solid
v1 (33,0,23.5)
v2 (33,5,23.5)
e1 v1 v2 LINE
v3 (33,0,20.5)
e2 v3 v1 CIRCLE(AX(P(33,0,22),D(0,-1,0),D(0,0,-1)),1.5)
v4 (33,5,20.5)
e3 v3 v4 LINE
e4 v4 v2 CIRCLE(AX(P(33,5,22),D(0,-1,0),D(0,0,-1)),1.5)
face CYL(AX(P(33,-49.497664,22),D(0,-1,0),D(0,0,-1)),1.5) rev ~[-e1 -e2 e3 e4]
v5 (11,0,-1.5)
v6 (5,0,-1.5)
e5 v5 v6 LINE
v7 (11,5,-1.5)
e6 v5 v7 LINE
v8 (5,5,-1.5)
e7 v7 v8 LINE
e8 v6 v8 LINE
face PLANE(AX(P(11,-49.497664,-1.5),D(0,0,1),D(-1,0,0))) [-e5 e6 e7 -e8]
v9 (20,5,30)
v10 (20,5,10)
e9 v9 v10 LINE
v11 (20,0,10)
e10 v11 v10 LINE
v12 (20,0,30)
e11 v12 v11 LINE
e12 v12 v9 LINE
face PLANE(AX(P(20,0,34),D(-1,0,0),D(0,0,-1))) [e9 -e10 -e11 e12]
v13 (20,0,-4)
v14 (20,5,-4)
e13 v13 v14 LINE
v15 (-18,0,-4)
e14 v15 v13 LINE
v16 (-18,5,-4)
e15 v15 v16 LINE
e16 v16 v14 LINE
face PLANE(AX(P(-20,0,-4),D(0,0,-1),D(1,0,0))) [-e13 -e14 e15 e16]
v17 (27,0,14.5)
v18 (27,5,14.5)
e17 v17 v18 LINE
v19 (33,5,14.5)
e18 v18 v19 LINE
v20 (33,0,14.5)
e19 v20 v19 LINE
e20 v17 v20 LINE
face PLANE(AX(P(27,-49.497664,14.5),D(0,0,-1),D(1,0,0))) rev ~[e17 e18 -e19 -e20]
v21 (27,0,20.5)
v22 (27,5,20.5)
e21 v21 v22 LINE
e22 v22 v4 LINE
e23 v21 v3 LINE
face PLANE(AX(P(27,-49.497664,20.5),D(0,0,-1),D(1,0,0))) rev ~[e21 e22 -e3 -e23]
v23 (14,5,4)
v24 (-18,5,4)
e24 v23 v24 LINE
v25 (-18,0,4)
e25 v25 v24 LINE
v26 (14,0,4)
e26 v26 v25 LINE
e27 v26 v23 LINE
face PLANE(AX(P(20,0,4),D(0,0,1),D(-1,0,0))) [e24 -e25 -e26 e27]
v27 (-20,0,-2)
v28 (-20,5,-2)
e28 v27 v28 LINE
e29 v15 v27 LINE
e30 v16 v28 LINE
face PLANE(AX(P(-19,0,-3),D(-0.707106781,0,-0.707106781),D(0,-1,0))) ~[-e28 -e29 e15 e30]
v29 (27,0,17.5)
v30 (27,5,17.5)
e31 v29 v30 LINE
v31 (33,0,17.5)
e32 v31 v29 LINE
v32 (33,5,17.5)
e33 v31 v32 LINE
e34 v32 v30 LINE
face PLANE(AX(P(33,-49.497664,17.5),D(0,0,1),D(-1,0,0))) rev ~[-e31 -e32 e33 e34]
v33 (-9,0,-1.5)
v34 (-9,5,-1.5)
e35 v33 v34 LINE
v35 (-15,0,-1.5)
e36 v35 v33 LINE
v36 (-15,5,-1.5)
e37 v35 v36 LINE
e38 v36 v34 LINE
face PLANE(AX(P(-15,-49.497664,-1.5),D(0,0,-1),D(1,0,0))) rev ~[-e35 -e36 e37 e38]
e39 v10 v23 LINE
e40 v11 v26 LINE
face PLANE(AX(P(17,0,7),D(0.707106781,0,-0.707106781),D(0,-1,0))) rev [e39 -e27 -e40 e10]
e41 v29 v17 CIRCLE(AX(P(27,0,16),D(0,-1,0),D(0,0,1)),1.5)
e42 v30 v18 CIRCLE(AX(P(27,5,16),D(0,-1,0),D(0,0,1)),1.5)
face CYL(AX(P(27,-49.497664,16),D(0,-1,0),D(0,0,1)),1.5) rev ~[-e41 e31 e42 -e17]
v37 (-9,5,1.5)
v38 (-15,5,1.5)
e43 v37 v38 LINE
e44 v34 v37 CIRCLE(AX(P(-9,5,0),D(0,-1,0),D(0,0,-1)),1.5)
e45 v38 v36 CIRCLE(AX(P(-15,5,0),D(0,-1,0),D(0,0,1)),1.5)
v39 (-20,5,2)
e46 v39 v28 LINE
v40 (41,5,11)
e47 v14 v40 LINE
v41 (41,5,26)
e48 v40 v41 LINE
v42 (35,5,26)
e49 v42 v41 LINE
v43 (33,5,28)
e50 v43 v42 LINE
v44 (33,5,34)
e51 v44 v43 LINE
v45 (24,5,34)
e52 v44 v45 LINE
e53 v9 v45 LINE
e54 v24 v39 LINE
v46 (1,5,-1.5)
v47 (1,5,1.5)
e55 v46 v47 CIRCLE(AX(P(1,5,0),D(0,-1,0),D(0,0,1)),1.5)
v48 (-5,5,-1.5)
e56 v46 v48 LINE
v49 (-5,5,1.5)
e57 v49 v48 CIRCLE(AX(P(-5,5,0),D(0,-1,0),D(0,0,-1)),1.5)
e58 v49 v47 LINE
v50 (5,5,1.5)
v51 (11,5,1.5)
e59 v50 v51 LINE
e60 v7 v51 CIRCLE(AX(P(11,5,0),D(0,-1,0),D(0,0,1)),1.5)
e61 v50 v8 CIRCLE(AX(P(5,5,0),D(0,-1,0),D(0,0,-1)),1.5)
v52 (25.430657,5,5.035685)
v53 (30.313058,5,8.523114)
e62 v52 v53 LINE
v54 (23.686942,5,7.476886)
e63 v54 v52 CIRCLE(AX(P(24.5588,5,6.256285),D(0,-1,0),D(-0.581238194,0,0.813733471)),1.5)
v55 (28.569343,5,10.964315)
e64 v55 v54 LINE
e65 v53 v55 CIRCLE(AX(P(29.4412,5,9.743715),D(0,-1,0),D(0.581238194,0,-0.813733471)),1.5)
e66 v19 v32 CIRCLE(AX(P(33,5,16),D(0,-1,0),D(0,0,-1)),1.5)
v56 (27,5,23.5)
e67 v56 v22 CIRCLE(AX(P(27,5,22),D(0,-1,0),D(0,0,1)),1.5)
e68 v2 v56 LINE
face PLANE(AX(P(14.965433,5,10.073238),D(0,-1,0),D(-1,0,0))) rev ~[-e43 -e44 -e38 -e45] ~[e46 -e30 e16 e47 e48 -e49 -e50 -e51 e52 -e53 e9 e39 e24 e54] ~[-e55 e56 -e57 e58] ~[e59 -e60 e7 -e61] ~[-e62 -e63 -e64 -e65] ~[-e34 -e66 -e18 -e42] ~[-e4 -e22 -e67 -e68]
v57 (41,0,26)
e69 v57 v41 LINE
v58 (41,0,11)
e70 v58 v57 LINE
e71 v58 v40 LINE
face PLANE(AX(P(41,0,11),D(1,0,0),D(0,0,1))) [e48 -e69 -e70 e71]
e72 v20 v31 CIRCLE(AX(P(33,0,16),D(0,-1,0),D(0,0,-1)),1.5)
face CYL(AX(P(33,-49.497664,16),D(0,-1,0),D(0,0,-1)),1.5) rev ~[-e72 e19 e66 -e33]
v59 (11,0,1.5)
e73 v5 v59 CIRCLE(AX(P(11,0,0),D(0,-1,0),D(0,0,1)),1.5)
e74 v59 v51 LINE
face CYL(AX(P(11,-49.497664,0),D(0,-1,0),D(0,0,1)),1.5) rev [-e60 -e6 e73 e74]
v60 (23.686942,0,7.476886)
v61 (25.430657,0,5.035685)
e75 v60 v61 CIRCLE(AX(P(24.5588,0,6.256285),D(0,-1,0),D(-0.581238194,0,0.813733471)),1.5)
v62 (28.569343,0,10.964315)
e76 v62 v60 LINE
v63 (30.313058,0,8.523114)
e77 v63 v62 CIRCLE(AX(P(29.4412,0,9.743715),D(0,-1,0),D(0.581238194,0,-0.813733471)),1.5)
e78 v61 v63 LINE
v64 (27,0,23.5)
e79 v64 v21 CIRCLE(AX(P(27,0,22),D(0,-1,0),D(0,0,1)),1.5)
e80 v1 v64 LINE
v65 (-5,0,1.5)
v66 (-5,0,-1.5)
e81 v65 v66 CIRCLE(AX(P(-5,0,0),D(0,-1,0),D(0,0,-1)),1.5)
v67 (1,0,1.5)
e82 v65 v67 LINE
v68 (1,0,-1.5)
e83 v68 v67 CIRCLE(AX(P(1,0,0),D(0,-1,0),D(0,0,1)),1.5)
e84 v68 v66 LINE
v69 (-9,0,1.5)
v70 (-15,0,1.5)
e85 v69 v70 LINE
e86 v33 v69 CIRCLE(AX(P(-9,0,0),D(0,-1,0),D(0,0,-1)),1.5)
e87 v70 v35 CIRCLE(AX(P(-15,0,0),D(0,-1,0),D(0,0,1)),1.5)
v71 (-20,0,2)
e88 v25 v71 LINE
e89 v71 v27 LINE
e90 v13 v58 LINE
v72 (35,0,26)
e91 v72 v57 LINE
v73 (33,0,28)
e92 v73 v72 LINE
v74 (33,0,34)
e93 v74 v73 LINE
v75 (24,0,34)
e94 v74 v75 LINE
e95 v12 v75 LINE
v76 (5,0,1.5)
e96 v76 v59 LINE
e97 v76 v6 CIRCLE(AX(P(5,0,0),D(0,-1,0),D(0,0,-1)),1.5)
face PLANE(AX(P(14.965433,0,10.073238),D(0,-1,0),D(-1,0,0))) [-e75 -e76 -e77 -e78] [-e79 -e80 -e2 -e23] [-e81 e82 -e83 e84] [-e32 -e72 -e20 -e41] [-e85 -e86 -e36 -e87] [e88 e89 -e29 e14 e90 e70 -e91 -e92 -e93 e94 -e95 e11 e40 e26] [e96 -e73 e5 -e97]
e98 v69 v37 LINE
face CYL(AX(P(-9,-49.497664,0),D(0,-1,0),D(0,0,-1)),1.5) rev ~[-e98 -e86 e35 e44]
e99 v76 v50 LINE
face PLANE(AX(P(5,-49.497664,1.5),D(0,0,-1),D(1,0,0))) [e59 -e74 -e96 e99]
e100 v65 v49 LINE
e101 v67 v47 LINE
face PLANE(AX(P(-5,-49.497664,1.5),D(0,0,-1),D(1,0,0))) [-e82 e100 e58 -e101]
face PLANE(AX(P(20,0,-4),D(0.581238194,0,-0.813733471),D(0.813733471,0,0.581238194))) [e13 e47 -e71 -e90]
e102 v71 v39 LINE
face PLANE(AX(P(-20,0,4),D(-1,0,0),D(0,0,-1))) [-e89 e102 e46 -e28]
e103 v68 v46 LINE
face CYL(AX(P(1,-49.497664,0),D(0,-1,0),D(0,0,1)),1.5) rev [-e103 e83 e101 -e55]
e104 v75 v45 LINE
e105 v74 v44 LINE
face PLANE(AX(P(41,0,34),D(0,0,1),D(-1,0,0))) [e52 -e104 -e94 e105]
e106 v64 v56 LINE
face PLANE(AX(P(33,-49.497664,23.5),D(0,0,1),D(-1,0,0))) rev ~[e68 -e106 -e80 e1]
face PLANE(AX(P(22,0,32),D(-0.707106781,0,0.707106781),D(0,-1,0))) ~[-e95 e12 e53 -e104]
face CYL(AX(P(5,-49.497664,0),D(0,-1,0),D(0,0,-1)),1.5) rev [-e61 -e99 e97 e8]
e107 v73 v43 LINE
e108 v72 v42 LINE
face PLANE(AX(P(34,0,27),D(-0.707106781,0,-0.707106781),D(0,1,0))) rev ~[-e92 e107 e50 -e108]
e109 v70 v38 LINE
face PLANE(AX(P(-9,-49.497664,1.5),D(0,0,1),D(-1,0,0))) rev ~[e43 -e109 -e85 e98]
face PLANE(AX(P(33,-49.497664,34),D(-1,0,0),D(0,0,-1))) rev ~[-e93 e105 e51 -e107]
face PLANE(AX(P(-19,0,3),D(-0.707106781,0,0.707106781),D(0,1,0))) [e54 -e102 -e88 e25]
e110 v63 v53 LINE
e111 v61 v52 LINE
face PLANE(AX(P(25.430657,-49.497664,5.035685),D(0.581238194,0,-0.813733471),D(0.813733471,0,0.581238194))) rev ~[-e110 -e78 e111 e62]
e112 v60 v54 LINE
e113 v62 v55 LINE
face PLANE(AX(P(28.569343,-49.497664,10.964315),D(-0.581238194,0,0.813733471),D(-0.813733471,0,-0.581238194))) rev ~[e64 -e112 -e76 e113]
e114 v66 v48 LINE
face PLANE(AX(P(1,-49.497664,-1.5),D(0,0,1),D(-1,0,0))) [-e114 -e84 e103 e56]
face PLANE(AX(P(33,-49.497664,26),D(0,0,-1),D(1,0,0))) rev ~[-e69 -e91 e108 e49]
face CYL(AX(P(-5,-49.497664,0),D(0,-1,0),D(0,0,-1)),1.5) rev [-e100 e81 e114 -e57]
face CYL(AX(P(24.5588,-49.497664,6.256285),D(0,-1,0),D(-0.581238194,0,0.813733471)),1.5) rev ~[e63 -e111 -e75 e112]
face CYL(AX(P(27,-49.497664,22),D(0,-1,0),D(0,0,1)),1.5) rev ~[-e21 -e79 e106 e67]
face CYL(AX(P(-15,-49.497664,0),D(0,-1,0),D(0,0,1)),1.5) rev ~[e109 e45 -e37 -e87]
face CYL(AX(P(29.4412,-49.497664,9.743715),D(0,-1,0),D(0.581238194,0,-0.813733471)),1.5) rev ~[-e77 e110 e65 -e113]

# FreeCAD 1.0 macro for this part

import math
import FreeCAD as App
import Part
import Sketcher

V = App.Vector


def edges_at(feature, points):
    """Names of the edges that pass closest to the given points."""
    edges = feature.Shape.Edges
    near = lambda p: min(range(len(edges)), key=lambda i: edges[i].distToShape(Part.Vertex(*p))[0])
    return sorted({f"Edge{near(p) + 1}" for p in points})


def add_polygon(sketch, points):
    """Adds a closed chain of lines whose ends are joined by coincident constraints."""
    first, n = sketch.GeometryCount, len(points)
    for a, b in zip(points, points[1:] + points[:1]):
        sketch.addGeometry(Part.LineSegment(App.Vector(*a, 0), App.Vector(*b, 0)), False)
    for i in range(n):
        sketch.addConstraint(Sketcher.Constraint("Coincident", first + i, 2, first + (i + 1) % n, 1))

doc = App.newDocument("Part")
params = doc.addObject("Spreadsheet::Sheet", "Params")
for row, (alias, value) in enumerate([
    ("sketch1_width", "40 mm"),
    ("sketch1_width2", "21 mm"),
    ("sketch1_height", "8 mm"),
    ("sketch1_height2", "30 mm"),
    ("sketch1_height3", "23 mm"),
    ("pad1_length", "5 mm"),
    ("chamfer_size", "6 mm"),
    ("sketch2_radius", "1.5 mm"),
    ("sketch2_width", "6 mm"),
    ("sketch2_width2", "8 mm"),
    ("sketch2_length", "6 mm"),
    ("chamfer2_size", "2 mm"),
    ("chamfer3_size", "2 mm"),
    ("chamfer4_size", "4 mm"),
], start=1):
    params.set(f"A{row}", alias)
    params.set(f"B{row}", "=" + value)
    params.setAlias(f"B{row}", alias)

body = doc.addObject("PartDesign::Body", "Body")

sketch1 = doc.addObject("Sketcher::SketchObject", "Sketch")
body.addObject(sketch1)
sketch1.AttachmentSupport = (doc.XZ_Plane, [""])
sketch1.MapMode = "FlatFace"
add_polygon(sketch1, [(41, 11), (20, -4), (-20, -4), (-20, 4), (20, 4), (20, 34), (41, 34)])
sketch1.addConstraint(Sketcher.Constraint("Horizontal", 1))
sketch1.addConstraint(Sketcher.Constraint("Vertical", 2))
sketch1.addConstraint(Sketcher.Constraint("Horizontal", 3))
sketch1.addConstraint(Sketcher.Constraint("Vertical", 4))
sketch1.addConstraint(Sketcher.Constraint("Horizontal", 5))
sketch1.addConstraint(Sketcher.Constraint("Vertical", 6))
sketch1.addConstraint(Sketcher.Constraint("Symmetric", 0, 2, 2, 2, -1, 1))
sketch1.addConstraint(Sketcher.Constraint("Vertical", 0, 2, 3, 2))
sketch1.addConstraint(Sketcher.Constraint("DistanceX", 1, 2, 1, 1, 40.0))
sketch1.addConstraint(Sketcher.Constraint("DistanceX", 5, 1, 5, 2, 21.0))
sketch1.addConstraint(Sketcher.Constraint("DistanceY", 2, 1, 2, 2, 8.0))
sketch1.addConstraint(Sketcher.Constraint("DistanceY", 4, 1, 4, 2, 30.0))
sketch1.addConstraint(Sketcher.Constraint("DistanceY", 6, 2, 6, 1, 23.0))
sketch1.setExpression("Constraints[15]", "Params.sketch1_width")
sketch1.setExpression("Constraints[16]", "Params.sketch1_width2")
sketch1.setExpression("Constraints[17]", "Params.sketch1_height")
sketch1.setExpression("Constraints[18]", "Params.sketch1_height2")
sketch1.setExpression("Constraints[19]", "Params.sketch1_height3")
pad1 = doc.addObject("PartDesign::Pad", "Pad")
body.addObject(pad1)
pad1.Profile = sketch1
pad1.setExpression("Length", "Params.pad1_length")
pad1.Reversed = True
doc.recompute()

chamfer = doc.addObject("PartDesign::Chamfer", "Chamfer")
body.addObject(chamfer)
chamfer.Base = (pad1, edges_at(pad1, [(20, 2.5, 4)]))
chamfer.setExpression("Size", "Params.chamfer_size")

sketch2 = doc.addObject("Sketcher::SketchObject", "Sketch001")
body.addObject(sketch2)
sketch2.AttachmentSupport = (doc.XZ_Plane, [""])
sketch2.MapMode = "FlatFace"
sketch2.AttachmentOffset = App.Placement(V(0, 0, -5), App.Rotation())
sketch2.addGeometry(Part.LineSegment(V(-9, -1.5, 0), V(-15, -1.5, 0)), False)
sketch2.addGeometry(Part.ArcOfCircle(Part.Circle(V(-15, 0, 0), V(0, 0, 1), 1.5), math.radians(90), math.radians(270)), False)
sketch2.addGeometry(Part.LineSegment(V(-15, 1.5, 0), V(-9, 1.5, 0)), False)
sketch2.addGeometry(Part.ArcOfCircle(Part.Circle(V(-9, 0, 0), V(0, 0, 1), 1.5), math.radians(-90), math.radians(90)), False)
sketch2.addGeometry(Part.LineSegment(V(-5, 1.5, 0), V(1, 1.5, 0)), False)
sketch2.addGeometry(Part.ArcOfCircle(Part.Circle(V(1, 0, 0), V(0, 0, 1), 1.5), math.radians(-90), math.radians(90)), False)
sketch2.addGeometry(Part.LineSegment(V(1, -1.5, 0), V(-5, -1.5, 0)), False)
sketch2.addGeometry(Part.ArcOfCircle(Part.Circle(V(-5, 0, 0), V(0, 0, 1), 1.5), math.radians(90), math.radians(270)), False)
sketch2.addGeometry(Part.LineSegment(V(5, 1.5, 0), V(11, 1.5, 0)), False)
sketch2.addGeometry(Part.ArcOfCircle(Part.Circle(V(11, 0, 0), V(0, 0, 1), 1.5), math.radians(-90), math.radians(90)), False)
sketch2.addGeometry(Part.LineSegment(V(11, -1.5, 0), V(5, -1.5, 0)), False)
sketch2.addGeometry(Part.ArcOfCircle(Part.Circle(V(5, 0, 0), V(0, 0, 1), 1.5), math.radians(90), math.radians(270)), False)
sketch2.addGeometry(Part.LineSegment(V(23.686942, 7.476886, 0), V(28.569343, 10.964315, 0)), False)
sketch2.addGeometry(Part.ArcOfCircle(Part.Circle(V(29.4412, 9.743715, 0), V(0, 0, 1), 1.5), math.radians(-54.462322), math.radians(125.537678)), False)
sketch2.addGeometry(Part.LineSegment(V(30.313058, 8.523114, 0), V(25.430657, 5.035685, 0)), False)
sketch2.addGeometry(Part.ArcOfCircle(Part.Circle(V(24.5588, 6.256285, 0), V(0, 0, 1), 1.5), math.radians(125.537678), math.radians(305.537678)), False)
sketch2.addGeometry(Part.LineSegment(V(33, 14.5, 0), V(27, 14.5, 0)), False)
sketch2.addGeometry(Part.ArcOfCircle(Part.Circle(V(27, 16, 0), V(0, 0, 1), 1.5), math.radians(90), math.radians(270)), False)
sketch2.addGeometry(Part.LineSegment(V(27, 17.5, 0), V(33, 17.5, 0)), False)
sketch2.addGeometry(Part.ArcOfCircle(Part.Circle(V(33, 16, 0), V(0, 0, 1), 1.5), math.radians(-90), math.radians(90)), False)
add_polygon(sketch2, [(33, 26), (33, 34), (41, 34), (41, 26)])
sketch2.addGeometry(Part.LineSegment(V(33, 20.5, 0), V(27, 20.5, 0)), False)
sketch2.addGeometry(Part.ArcOfCircle(Part.Circle(V(27, 22, 0), V(0, 0, 1), 1.5), math.radians(90), math.radians(270)), False)
sketch2.addGeometry(Part.LineSegment(V(27, 23.5, 0), V(33, 23.5, 0)), False)
sketch2.addGeometry(Part.ArcOfCircle(Part.Circle(V(33, 22, 0), V(0, 0, 1), 1.5), math.radians(-90), math.radians(90)), False)
sketch2.addConstraint(Sketcher.Constraint("Tangent", 0, 2, 1, 2))
sketch2.addConstraint(Sketcher.Constraint("Tangent", 1, 1, 2, 1))
sketch2.addConstraint(Sketcher.Constraint("Tangent", 2, 2, 3, 2))
sketch2.addConstraint(Sketcher.Constraint("Tangent", 3, 1, 0, 1))
sketch2.addConstraint(Sketcher.Constraint("Tangent", 4, 2, 5, 2))
sketch2.addConstraint(Sketcher.Constraint("Tangent", 5, 1, 6, 1))
sketch2.addConstraint(Sketcher.Constraint("Tangent", 6, 2, 7, 2))
sketch2.addConstraint(Sketcher.Constraint("Tangent", 7, 1, 4, 1))
sketch2.addConstraint(Sketcher.Constraint("Tangent", 8, 2, 9, 2))
sketch2.addConstraint(Sketcher.Constraint("Tangent", 9, 1, 10, 1))
sketch2.addConstraint(Sketcher.Constraint("Tangent", 10, 2, 11, 2))
sketch2.addConstraint(Sketcher.Constraint("Tangent", 11, 1, 8, 1))
sketch2.addConstraint(Sketcher.Constraint("Tangent", 12, 2, 13, 2))
sketch2.addConstraint(Sketcher.Constraint("Tangent", 13, 1, 14, 1))
sketch2.addConstraint(Sketcher.Constraint("Tangent", 14, 2, 15, 2))
sketch2.addConstraint(Sketcher.Constraint("Tangent", 15, 1, 12, 1))
sketch2.addConstraint(Sketcher.Constraint("Tangent", 16, 2, 17, 2))
sketch2.addConstraint(Sketcher.Constraint("Tangent", 17, 1, 18, 1))
sketch2.addConstraint(Sketcher.Constraint("Tangent", 18, 2, 19, 2))
sketch2.addConstraint(Sketcher.Constraint("Tangent", 19, 1, 16, 1))
sketch2.addConstraint(Sketcher.Constraint("Tangent", 24, 2, 25, 2))
sketch2.addConstraint(Sketcher.Constraint("Tangent", 25, 1, 26, 1))
sketch2.addConstraint(Sketcher.Constraint("Tangent", 26, 2, 27, 2))
sketch2.addConstraint(Sketcher.Constraint("Tangent", 27, 1, 24, 1))
sketch2.addConstraint(Sketcher.Constraint("Horizontal", 0))
sketch2.addConstraint(Sketcher.Constraint("Horizontal", 2))
sketch2.addConstraint(Sketcher.Constraint("Horizontal", 4))
sketch2.addConstraint(Sketcher.Constraint("Horizontal", 6))
sketch2.addConstraint(Sketcher.Constraint("Horizontal", 8))
sketch2.addConstraint(Sketcher.Constraint("Horizontal", 10))
sketch2.addConstraint(Sketcher.Constraint("Horizontal", 16))
sketch2.addConstraint(Sketcher.Constraint("Horizontal", 18))
sketch2.addConstraint(Sketcher.Constraint("Vertical", 20))
sketch2.addConstraint(Sketcher.Constraint("Horizontal", 21))
sketch2.addConstraint(Sketcher.Constraint("Vertical", 22))
sketch2.addConstraint(Sketcher.Constraint("Horizontal", 23))
sketch2.addConstraint(Sketcher.Constraint("Horizontal", 24))
sketch2.addConstraint(Sketcher.Constraint("Horizontal", 26))
sketch2.addConstraint(Sketcher.Constraint("Equal", 3, 5))
sketch2.addConstraint(Sketcher.Constraint("Equal", 7, 9))
sketch2.addConstraint(Sketcher.Constraint("Equal", 11, 13))
sketch2.addConstraint(Sketcher.Constraint("Equal", 13, 15))
sketch2.addConstraint(Sketcher.Constraint("Equal", 15, 17))
sketch2.addConstraint(Sketcher.Constraint("Equal", 19, 25))
sketch2.addConstraint(Sketcher.Constraint("Symmetric", 7, 3, 11, 3, -1, 1))
sketch2.addConstraint(Sketcher.Constraint("PointOnObject", 1, 3, -1))
sketch2.addConstraint(Sketcher.Constraint("PointOnObject", 5, 3, -1))
sketch2.addConstraint(Sketcher.Constraint("Vertical", 17, 3, 25, 3))
sketch2.addConstraint(Sketcher.Constraint("Vertical", 19, 3, 27, 3))
sketch2.addConstraint(Sketcher.Constraint("Vertical", 19, 1, 20, 2))
sketch2.addConstraint(Sketcher.Constraint("Equal", 2, 4))
sketch2.addConstraint(Sketcher.Constraint("Equal", 6, 8))
sketch2.addConstraint(Sketcher.Constraint("Equal", 10, 16))
sketch2.addConstraint(Sketcher.Constraint("Equal", 23, 20))
sketch2.addConstraint(Sketcher.Constraint("Radius", 1, 1.5))
sketch2.addConstraint(Sketcher.Constraint("DistanceX", 0, 2, 0, 1, 6.0))
sketch2.addConstraint(Sketcher.Constraint("DistanceX", 21, 1, 21, 2, 8.0))
sketch2.addConstraint(Sketcher.Constraint("Distance", 12, 6.0))
sketch2.addConstraint(Sketcher.Constraint("DistanceX", 1, 3, -1, 1, 15.0))
sketch2.addConstraint(Sketcher.Constraint("DistanceX", -1, 1, 5, 3, 1.0))
sketch2.addConstraint(Sketcher.Constraint("DistanceX", -1, 1, 17, 3, 27.0))
sketch2.addConstraint(Sketcher.Constraint("DistanceY", -1, 1, 17, 3, 16.0))
sketch2.addConstraint(Sketcher.Constraint("DistanceY", -1, 1, 25, 3, 22.0))
sketch2.addConstraint(Sketcher.Constraint("DistanceY", -1, 1, 20, 2, 34.0))
sketch2.addConstraint(Sketcher.Constraint("DistanceX", -1, 1, 13, 3, 29.4412))
sketch2.addConstraint(Sketcher.Constraint("DistanceX", -1, 1, 15, 3, 24.5588))
sketch2.addConstraint(Sketcher.Constraint("DistanceY", -1, 1, 13, 3, 9.743715))
sketch2.setExpression("Constraints[58]", "Params.sketch2_radius")
sketch2.setExpression("Constraints[59]", "Params.sketch2_width")
sketch2.setExpression("Constraints[60]", "Params.sketch2_width2")
sketch2.setExpression("Constraints[61]", "Params.sketch2_length")
pocket1 = doc.addObject("PartDesign::Pocket", "Pocket")
body.addObject(pocket1)
pocket1.Profile = sketch2
pocket1.Type = "ThroughAll"
pocket1.Midplane = True
doc.recompute()

chamfer2 = doc.addObject("PartDesign::Chamfer", "Chamfer001")
body.addObject(chamfer2)
chamfer2.Base = (pocket1, edges_at(pocket1, [(33, 2.5, 26)]))
chamfer2.setExpression("Size", "Params.chamfer2_size")
doc.recompute()

chamfer3 = doc.addObject("PartDesign::Chamfer", "Chamfer002")
body.addObject(chamfer3)
chamfer3.Base = (chamfer2, edges_at(chamfer2, [(-20, 2.5, 4), (-20, 2.5, -4)]))
chamfer3.setExpression("Size", "Params.chamfer3_size")
doc.recompute()

chamfer4 = doc.addObject("PartDesign::Chamfer", "Chamfer003")
body.addObject(chamfer4)
chamfer4.Base = (chamfer3, edges_at(chamfer3, [(20, 2.5, 34)]))
chamfer4.setExpression("Size", "Params.chamfer4_size")

doc.recompute()
